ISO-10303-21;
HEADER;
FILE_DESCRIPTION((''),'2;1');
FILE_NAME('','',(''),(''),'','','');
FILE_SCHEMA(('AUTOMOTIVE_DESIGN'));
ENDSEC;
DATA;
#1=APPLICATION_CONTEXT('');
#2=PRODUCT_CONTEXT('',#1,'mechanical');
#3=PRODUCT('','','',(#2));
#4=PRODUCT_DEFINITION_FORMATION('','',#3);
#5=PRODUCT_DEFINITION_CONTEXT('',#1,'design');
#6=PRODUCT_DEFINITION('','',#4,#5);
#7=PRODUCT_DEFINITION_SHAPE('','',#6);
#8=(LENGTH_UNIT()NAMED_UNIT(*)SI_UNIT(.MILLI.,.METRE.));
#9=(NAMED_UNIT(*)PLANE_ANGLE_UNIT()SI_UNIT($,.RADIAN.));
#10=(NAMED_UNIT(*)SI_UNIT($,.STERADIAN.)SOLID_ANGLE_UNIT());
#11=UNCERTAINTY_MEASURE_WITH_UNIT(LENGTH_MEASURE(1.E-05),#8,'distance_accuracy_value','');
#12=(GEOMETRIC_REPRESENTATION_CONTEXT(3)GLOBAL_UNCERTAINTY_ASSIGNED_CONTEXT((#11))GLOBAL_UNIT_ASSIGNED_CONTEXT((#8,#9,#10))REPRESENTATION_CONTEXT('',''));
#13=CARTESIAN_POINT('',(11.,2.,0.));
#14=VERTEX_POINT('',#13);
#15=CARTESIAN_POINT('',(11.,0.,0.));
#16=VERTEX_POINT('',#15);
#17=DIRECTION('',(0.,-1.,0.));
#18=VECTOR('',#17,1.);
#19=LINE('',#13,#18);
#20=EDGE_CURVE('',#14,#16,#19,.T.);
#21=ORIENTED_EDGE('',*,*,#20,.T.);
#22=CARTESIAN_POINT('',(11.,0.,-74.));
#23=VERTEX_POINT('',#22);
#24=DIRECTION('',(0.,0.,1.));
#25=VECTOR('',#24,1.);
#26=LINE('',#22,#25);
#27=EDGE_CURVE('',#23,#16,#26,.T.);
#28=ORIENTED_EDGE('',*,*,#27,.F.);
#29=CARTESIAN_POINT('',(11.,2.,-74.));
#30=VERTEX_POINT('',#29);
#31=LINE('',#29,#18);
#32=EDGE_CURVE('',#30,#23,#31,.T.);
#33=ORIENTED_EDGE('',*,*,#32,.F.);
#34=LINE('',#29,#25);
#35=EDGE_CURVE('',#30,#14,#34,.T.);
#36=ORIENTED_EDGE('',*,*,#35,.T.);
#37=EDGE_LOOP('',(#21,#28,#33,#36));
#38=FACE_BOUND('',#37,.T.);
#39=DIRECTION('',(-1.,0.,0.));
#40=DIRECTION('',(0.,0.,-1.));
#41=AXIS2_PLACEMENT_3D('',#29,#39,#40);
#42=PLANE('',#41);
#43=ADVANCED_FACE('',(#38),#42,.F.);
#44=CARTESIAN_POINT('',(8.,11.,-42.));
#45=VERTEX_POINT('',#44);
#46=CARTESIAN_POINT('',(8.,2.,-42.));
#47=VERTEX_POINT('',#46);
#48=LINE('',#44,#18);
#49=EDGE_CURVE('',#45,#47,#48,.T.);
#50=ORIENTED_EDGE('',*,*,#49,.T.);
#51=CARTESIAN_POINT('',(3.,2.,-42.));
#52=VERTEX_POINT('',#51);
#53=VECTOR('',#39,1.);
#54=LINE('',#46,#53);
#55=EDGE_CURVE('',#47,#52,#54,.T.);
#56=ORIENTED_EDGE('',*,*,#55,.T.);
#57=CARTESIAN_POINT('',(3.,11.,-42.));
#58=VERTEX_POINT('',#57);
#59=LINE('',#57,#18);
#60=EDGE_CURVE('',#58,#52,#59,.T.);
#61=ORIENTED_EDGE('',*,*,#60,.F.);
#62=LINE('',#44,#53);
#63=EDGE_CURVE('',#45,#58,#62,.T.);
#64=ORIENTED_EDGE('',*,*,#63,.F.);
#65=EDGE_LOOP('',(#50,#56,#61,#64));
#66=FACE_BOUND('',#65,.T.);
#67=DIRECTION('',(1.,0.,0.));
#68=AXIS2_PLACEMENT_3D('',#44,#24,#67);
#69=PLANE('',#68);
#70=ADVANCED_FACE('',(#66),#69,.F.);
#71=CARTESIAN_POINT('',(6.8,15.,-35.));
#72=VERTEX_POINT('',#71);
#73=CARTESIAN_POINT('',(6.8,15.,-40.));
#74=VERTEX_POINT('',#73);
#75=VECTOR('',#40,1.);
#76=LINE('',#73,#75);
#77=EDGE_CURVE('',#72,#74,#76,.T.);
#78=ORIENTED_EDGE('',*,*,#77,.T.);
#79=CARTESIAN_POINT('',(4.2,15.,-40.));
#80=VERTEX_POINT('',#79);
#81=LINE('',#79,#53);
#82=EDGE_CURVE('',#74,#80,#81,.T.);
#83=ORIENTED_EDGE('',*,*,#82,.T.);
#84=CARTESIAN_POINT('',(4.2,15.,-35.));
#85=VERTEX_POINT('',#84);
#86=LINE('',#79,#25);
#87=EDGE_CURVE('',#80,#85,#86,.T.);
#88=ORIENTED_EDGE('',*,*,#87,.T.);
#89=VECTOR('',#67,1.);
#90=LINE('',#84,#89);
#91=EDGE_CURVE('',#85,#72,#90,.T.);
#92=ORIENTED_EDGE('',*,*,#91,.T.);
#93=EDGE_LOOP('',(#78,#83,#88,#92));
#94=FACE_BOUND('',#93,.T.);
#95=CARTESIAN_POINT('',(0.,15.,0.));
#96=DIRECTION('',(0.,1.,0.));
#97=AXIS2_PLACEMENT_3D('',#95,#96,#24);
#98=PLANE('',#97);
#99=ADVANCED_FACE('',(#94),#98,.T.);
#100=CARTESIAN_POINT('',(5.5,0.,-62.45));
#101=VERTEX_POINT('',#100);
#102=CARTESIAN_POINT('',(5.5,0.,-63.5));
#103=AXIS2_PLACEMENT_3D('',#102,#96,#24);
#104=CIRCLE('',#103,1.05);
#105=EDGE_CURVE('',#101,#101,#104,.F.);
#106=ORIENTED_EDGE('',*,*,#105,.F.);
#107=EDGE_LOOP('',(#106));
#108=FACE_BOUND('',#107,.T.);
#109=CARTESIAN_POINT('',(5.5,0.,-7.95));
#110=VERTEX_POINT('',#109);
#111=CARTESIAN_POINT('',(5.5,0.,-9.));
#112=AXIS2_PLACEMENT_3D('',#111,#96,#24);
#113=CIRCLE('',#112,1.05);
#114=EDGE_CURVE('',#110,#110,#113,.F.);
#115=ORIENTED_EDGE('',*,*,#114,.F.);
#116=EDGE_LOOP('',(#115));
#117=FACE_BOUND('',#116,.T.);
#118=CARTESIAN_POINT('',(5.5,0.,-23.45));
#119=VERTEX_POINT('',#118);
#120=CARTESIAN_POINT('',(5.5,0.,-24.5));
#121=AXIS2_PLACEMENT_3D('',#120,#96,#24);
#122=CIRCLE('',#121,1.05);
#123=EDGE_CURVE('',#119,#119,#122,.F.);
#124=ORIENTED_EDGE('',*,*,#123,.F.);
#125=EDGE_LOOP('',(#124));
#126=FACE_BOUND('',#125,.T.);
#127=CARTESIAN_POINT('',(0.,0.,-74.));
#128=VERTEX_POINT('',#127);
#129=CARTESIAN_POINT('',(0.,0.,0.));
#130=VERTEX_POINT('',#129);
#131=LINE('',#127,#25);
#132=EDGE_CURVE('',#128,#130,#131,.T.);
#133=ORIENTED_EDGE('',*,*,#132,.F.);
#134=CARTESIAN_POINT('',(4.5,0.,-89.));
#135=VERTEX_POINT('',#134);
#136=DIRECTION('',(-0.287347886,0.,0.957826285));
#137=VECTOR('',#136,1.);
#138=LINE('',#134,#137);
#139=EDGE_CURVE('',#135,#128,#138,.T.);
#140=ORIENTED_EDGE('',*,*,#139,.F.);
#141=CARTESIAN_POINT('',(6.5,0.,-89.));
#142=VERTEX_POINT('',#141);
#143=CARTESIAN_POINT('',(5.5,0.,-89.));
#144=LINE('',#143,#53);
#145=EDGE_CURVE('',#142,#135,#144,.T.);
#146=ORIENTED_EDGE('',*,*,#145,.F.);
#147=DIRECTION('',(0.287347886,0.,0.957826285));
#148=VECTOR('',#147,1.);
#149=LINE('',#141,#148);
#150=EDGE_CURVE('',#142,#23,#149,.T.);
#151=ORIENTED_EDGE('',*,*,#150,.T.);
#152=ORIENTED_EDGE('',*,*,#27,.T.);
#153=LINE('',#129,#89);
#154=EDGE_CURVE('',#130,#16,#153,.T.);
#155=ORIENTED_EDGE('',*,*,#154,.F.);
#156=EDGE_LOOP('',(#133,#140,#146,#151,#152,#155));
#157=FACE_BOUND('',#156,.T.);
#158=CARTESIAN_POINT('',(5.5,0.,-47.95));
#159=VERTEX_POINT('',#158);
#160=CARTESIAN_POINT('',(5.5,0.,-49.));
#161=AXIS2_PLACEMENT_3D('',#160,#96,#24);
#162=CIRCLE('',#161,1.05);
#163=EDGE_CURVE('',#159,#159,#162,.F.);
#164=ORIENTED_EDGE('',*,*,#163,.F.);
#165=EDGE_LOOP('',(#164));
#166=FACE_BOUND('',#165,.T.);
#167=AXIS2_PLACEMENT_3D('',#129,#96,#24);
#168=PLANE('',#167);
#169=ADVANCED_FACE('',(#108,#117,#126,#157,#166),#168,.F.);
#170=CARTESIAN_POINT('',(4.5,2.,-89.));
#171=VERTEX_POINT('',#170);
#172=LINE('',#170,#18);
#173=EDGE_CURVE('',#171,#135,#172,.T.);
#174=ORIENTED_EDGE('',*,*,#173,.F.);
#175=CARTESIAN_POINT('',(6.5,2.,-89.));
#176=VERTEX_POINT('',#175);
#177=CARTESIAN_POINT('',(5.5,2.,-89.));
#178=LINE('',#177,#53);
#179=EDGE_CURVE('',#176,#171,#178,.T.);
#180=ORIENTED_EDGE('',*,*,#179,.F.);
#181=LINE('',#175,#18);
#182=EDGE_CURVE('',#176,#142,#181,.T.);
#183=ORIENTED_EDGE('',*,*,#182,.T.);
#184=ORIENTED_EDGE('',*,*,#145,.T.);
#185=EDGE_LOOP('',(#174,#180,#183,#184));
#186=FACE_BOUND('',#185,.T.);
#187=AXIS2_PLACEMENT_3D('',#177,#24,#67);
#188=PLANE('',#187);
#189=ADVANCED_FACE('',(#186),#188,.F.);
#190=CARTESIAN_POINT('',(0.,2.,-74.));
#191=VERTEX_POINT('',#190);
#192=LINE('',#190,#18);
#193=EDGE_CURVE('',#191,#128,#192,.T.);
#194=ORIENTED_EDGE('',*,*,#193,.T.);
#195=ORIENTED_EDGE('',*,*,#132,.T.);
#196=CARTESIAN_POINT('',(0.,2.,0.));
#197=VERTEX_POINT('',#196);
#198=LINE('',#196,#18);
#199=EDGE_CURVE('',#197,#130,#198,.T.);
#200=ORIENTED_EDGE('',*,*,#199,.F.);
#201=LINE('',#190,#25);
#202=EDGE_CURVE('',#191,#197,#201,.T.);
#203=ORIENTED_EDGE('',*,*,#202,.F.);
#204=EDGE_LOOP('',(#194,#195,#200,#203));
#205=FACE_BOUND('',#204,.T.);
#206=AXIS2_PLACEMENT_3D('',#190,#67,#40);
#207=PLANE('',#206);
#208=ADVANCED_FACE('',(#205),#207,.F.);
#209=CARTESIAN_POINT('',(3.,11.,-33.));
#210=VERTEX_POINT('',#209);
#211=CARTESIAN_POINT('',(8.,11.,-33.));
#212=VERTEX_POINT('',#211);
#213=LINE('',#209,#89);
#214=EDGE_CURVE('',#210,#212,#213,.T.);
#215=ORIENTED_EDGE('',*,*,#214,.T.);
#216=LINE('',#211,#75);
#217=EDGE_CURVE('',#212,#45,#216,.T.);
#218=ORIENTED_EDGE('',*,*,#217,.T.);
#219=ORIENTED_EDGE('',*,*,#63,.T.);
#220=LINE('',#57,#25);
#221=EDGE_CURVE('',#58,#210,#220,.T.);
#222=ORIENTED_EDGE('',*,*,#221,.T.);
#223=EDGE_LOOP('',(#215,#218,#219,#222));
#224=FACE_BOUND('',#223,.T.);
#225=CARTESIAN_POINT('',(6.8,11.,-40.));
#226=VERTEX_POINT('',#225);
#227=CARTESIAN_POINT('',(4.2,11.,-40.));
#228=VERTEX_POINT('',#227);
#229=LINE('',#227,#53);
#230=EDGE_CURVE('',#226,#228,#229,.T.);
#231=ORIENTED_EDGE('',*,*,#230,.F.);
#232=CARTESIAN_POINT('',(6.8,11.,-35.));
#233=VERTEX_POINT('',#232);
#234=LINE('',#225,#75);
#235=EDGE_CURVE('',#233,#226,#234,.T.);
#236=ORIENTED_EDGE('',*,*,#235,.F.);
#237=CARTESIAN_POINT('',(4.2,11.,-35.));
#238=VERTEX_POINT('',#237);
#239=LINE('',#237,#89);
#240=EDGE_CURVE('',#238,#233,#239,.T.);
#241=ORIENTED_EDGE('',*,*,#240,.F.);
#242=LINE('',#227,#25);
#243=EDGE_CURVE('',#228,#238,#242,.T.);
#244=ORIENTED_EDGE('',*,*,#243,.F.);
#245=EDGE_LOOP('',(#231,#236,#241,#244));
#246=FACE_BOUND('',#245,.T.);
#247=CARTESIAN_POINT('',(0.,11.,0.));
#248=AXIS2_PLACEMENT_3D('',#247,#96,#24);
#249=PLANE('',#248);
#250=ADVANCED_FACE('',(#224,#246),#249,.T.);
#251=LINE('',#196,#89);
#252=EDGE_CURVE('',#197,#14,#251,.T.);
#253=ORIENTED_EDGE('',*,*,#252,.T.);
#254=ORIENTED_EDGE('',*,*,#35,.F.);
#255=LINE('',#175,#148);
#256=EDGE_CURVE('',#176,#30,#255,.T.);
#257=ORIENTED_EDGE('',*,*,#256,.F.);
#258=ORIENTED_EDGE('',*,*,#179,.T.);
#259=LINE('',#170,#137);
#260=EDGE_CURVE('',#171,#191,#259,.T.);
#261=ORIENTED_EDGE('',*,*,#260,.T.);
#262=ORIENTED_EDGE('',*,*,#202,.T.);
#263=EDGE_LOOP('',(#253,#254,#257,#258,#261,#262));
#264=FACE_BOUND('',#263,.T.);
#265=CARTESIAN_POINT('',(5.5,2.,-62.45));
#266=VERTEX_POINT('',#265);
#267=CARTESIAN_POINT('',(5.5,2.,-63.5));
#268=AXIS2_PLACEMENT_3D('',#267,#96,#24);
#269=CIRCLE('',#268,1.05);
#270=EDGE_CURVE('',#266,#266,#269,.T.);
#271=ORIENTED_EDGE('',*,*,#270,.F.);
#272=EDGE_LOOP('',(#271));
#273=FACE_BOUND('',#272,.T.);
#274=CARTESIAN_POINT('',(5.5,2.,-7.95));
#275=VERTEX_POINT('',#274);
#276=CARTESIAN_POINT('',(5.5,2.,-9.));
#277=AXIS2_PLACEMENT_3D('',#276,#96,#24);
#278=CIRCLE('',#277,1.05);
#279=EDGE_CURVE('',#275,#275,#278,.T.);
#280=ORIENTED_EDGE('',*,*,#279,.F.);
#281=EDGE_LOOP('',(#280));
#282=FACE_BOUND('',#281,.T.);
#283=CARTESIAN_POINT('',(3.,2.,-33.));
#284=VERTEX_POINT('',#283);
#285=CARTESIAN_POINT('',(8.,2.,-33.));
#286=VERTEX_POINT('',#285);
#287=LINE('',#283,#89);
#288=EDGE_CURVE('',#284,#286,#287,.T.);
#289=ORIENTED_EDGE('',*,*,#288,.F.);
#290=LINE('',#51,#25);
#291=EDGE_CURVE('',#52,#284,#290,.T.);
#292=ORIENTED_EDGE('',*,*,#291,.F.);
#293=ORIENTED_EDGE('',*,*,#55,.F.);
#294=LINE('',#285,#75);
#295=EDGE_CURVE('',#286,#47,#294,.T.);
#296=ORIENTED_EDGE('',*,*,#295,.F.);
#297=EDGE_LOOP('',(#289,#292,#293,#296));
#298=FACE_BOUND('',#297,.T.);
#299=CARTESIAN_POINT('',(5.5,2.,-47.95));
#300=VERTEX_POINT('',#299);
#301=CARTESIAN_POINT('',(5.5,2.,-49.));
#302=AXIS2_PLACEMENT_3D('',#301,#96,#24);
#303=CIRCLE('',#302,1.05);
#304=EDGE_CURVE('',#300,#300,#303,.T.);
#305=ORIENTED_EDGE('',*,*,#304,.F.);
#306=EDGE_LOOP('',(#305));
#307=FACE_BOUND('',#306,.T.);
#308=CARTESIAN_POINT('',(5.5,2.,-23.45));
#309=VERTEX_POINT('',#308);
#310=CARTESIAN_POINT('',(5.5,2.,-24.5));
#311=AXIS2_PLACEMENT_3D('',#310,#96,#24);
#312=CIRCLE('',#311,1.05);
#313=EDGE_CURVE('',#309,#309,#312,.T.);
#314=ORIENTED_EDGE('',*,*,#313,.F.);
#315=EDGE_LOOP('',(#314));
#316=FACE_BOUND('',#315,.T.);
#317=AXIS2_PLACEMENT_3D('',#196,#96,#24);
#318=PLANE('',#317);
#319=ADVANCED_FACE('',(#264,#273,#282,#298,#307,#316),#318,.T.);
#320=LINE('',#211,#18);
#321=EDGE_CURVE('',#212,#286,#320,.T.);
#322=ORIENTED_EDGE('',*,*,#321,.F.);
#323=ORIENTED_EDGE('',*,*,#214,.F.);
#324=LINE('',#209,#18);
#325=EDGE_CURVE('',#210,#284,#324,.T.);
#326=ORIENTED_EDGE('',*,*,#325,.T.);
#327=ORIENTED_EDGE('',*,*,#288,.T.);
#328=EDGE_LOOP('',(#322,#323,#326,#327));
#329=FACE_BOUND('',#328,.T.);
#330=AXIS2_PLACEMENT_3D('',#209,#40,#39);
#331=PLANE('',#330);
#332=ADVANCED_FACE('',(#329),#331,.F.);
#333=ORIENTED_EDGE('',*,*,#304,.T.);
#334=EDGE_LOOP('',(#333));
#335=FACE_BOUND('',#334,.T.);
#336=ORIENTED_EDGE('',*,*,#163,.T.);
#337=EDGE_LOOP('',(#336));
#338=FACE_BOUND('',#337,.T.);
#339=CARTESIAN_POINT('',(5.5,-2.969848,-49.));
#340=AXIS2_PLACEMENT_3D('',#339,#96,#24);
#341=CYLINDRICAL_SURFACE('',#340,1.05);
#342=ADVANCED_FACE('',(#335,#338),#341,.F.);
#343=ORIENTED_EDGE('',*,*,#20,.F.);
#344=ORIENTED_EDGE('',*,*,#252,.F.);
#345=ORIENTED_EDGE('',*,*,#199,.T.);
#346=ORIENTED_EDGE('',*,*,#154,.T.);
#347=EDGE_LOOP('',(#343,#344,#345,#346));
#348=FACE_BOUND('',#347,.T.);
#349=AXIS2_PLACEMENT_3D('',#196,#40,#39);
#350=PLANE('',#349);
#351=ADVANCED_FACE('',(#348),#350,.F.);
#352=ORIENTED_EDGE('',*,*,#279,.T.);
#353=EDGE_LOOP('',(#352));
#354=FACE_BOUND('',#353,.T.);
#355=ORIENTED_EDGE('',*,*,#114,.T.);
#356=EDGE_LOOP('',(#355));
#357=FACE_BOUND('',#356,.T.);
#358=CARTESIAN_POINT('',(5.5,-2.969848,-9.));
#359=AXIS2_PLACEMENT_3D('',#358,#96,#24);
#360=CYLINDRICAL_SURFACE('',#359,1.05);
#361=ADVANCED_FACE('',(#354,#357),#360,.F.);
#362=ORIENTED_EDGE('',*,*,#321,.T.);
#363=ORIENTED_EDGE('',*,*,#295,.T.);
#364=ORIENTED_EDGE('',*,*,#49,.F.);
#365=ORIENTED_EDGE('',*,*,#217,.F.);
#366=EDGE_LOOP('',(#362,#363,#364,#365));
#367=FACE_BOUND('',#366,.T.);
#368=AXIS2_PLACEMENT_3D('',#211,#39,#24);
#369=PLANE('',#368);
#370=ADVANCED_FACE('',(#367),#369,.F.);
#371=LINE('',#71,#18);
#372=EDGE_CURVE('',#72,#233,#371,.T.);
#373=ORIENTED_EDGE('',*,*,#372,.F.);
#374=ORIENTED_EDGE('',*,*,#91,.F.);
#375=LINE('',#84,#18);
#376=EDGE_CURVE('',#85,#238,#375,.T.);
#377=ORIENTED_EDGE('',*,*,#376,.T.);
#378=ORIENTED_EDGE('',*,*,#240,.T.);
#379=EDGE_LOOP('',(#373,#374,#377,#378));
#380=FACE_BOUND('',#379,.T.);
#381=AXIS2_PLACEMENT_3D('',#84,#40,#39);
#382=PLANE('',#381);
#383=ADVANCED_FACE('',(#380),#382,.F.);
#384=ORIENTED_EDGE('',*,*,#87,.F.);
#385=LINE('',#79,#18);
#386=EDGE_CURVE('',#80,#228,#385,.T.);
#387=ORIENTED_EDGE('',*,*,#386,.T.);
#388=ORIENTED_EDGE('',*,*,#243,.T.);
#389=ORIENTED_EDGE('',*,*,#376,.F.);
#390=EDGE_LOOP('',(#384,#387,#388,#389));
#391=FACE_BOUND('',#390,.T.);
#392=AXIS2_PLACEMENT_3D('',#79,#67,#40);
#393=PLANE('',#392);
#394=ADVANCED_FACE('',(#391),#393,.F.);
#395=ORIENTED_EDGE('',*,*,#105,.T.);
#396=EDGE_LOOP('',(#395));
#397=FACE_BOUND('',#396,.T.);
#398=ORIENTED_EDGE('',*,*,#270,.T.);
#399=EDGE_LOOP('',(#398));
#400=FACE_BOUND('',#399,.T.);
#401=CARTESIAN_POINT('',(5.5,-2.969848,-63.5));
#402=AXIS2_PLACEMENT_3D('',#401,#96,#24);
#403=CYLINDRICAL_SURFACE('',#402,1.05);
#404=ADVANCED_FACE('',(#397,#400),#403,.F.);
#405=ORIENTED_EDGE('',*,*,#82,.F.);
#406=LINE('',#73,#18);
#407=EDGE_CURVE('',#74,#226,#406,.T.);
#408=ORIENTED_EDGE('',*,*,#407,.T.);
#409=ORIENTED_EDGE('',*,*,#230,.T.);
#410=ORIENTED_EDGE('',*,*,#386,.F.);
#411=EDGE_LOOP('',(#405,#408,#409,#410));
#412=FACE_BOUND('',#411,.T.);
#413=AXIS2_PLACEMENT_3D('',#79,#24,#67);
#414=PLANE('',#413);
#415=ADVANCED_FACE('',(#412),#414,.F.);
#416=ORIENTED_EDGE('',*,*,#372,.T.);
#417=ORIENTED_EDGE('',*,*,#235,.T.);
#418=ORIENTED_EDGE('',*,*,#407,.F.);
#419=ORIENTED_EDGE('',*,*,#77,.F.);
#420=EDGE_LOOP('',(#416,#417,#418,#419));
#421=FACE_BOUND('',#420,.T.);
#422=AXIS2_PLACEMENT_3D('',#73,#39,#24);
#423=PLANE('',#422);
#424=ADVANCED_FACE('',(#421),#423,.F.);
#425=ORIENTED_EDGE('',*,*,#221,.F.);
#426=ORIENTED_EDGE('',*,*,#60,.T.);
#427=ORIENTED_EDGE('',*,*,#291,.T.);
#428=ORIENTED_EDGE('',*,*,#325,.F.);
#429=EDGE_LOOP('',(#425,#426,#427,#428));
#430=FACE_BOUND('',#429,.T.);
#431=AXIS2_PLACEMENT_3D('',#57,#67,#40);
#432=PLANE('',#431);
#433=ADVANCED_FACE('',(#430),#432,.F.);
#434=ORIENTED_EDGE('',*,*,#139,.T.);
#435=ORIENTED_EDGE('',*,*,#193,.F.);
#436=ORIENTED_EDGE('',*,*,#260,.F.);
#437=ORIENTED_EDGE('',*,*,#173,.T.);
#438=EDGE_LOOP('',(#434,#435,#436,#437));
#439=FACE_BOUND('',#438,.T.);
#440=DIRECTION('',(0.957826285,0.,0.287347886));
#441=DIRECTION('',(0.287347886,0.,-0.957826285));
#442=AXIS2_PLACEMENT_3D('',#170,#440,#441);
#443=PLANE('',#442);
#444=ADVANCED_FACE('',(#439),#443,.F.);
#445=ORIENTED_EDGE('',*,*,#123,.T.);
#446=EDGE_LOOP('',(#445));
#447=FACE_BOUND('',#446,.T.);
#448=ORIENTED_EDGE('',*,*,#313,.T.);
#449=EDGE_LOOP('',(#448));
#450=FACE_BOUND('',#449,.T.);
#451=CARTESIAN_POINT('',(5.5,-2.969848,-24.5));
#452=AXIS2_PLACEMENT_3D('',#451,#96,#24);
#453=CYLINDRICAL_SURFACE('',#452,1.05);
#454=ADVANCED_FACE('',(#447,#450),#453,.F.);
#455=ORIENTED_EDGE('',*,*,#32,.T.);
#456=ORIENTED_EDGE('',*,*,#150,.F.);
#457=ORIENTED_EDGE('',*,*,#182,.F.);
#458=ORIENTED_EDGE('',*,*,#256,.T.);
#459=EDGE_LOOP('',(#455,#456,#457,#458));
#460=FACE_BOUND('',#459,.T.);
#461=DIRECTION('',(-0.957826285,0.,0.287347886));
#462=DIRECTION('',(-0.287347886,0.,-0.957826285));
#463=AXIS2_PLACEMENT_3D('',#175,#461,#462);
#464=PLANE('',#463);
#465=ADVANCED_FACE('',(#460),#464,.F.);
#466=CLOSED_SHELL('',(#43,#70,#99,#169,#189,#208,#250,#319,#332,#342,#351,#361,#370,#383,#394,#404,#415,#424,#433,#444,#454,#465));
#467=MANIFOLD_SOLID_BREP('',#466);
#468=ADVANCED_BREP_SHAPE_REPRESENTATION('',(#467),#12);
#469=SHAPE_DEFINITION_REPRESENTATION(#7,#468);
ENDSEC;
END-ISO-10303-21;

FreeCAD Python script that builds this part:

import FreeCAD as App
import Part
import Sketcher
Q = App.Units.Quantity


def add_polygon(sketch, points):
    """Adds a closed chain of lines whose ends are joined by coincident constraints."""
    first, n = sketch.GeometryCount, len(points)
    for a, b in zip(points, points[1:] + points[:1]):
        sketch.addGeometry(Part.LineSegment(App.Vector(*a, 0), App.Vector(*b, 0)), False)
    for i in range(n):
        sketch.addConstraint(Sketcher.Constraint("Coincident", first + i, 2, first + (i + 1) % n, 1))

doc = App.newDocument("Part")
body = doc.addObject("PartDesign::Body", "Body")

sketch1 = doc.addObject("Sketcher::SketchObject", "Sketch")
body.addObject(sketch1)
sketch1.AttachmentSupport = (doc.XZ_Plane, [""])
sketch1.MapMode = "FlatFace"
add_polygon(sketch1, [(0, 0), (5.5, 0), (5.5, -89), (4.5, -89), (0, -74)])
sketch1.addConstraint([
    Sketcher.Constraint("Horizontal", 0),
    Sketcher.Constraint("Vertical", 1),
    Sketcher.Constraint("Horizontal", 2),
    Sketcher.Constraint("Vertical", 4),
    Sketcher.Constraint("Coincident", 4, 2, -1, 1),
    Sketcher.Constraint("DistanceX", 2, 2, 2, 1, Q("1 mm")),
    Sketcher.Constraint("DistanceY", 1, 2, 1, 1, Q("89 mm")),
    Sketcher.Constraint("DistanceY", 4, 1, 4, 2, Q("74 mm")),
    Sketcher.Constraint("DistanceX", 0, 1, 0, 2, Q("5.5 mm")),
])
pad1 = doc.addObject("PartDesign::Pad", "Pad")
body.addObject(pad1)
pad1.Profile = sketch1
pad1.Length = 2
pad1.Reversed = True
body2 = doc.addObject("PartDesign::Body", "Body001")
doc.recompute()

body2.BaseFeature = body
doc.recompute()

mirroring = doc.addObject("Part::Mirroring", "Mirroring")
mirroring.Source = body
mirroring.Base = App.Vector(5.5, 2, 0)
mirroring.Normal = App.Vector(-1, 0, 0)
body3 = doc.addObject("PartDesign::Body", "Body002")
body3.BaseFeature = mirroring
boolean = doc.addObject("PartDesign::Boolean", "Boolean")
body2.addObject(boolean)
boolean.Type = "Fuse"
boolean.addObjects([body3])
doc.recompute()

sketch2 = doc.addObject("Sketcher::SketchObject", "Sketch001")
body2.addObject(sketch2)
sketch2.AttachmentSupport = (doc.getObject("XZ_Plane001"), [""])
sketch2.MapMode = "FlatFace"
sketch2.AttachmentOffset = App.Placement(App.Vector(0, 0, -2), App.Rotation())
sketch2.addGeometry([
    Part.Circle(App.Vector(5.5, -9, 0), App.Vector(0, 0, 1), 1.05),
    Part.Circle(App.Vector(5.5, -24.5, 0), App.Vector(0, 0, 1), 1.05),
    Part.Circle(App.Vector(5.5, -49, 0), App.Vector(0, 0, 1), 1.05),
    Part.Circle(App.Vector(5.5, -63.5, 0), App.Vector(0, 0, 1), 1.05),
], False)
sketch2.addConstraint([
    Sketcher.Constraint("Equal", 0, 1),
    Sketcher.Constraint("Equal", 1, 2),
    Sketcher.Constraint("Equal", 2, 3),
    Sketcher.Constraint("Vertical", 0, 3, 1, 3),
    Sketcher.Constraint("Vertical", 1, 3, 2, 3),
    Sketcher.Constraint("Vertical", 2, 3, 3, 3),
    Sketcher.Constraint("Diameter", 0, Q("2.1 mm")),
    Sketcher.Constraint("DistanceY", 0, 3, -1, 1, Q("9 mm")),
    Sketcher.Constraint("DistanceY", 2, 3, -1, 1, Q("49 mm")),
    Sketcher.Constraint("DistanceY", 3, 3, 1, 3, Q("39 mm")),
    Sketcher.Constraint("DistanceX", -1, 1, 0, 3, Q("5.5 mm")),
    Sketcher.Constraint("DistanceY", 1, 3, -1, 1, Q("24.5 mm")),
])
pocket1 = doc.addObject("PartDesign::Pocket", "Pocket")
body2.addObject(pocket1)
pocket1.Profile = sketch2
pocket1.Length = 2
pocket1.Reversed = True

sketch3 = doc.addObject("Sketcher::SketchObject", "Sketch002")
body2.addObject(sketch3)
sketch3.AttachmentSupport = (doc.getObject("XZ_Plane001"), [""])
sketch3.MapMode = "FlatFace"
sketch3.AttachmentOffset = App.Placement(App.Vector(0, 0, -2), App.Rotation())
add_polygon(sketch3, [(3, -42), (3, -33), (8, -33), (8, -42)])
sketch3.addConstraint([
    Sketcher.Constraint("Vertical", 0),
    Sketcher.Constraint("Horizontal", 1),
    Sketcher.Constraint("Vertical", 2),
    Sketcher.Constraint("Horizontal", 3),
    Sketcher.Constraint("DistanceX", 1, 1, 1, 2, Q("5 mm")),
    Sketcher.Constraint("DistanceY", 0, 1, 0, 2, Q("9 mm")),
    Sketcher.Constraint("DistanceX", -1, 1, 0, 2, Q("3 mm")),
    Sketcher.Constraint("DistanceY", 0, 2, -1, 1, Q("33 mm")),
])
pad2 = doc.addObject("PartDesign::Pad", "Pad001")
body2.addObject(pad2)
pad2.Profile = sketch3
pad2.Length = 9
pad2.Reversed = True

sketch4 = doc.addObject("Sketcher::SketchObject", "Sketch003")
body2.addObject(sketch4)
sketch4.AttachmentSupport = (doc.getObject("XZ_Plane001"), [""])
sketch4.MapMode = "FlatFace"
sketch4.AttachmentOffset = App.Placement(App.Vector(0, 0, -11), App.Rotation())
add_polygon(sketch4, [(4.2, -40), (4.2, -35), (6.8, -35), (6.8, -40)])
sketch4.addConstraint([
    Sketcher.Constraint("Vertical", 0),
    Sketcher.Constraint("Horizontal", 1),
    Sketcher.Constraint("Vertical", 2),
    Sketcher.Constraint("Horizontal", 3),
    Sketcher.Constraint("DistanceY", 0, 1, 0, 2, Q("5 mm")),
    Sketcher.Constraint("DistanceX", 1, 1, 1, 2, Q("2.6 mm")),
    Sketcher.Constraint("DistanceY", 0, 2, -1, 1, Q("35 mm")),
    Sketcher.Constraint("DistanceX", -1, 1, 0, 2, Q("4.2 mm")),
])
pad3 = doc.addObject("PartDesign::Pad", "Pad002")
body2.addObject(pad3)
pad3.Profile = sketch4
pad3.Length = 4
pad3.Reversed = True
mirroring.Visibility = False

doc.recompute()
